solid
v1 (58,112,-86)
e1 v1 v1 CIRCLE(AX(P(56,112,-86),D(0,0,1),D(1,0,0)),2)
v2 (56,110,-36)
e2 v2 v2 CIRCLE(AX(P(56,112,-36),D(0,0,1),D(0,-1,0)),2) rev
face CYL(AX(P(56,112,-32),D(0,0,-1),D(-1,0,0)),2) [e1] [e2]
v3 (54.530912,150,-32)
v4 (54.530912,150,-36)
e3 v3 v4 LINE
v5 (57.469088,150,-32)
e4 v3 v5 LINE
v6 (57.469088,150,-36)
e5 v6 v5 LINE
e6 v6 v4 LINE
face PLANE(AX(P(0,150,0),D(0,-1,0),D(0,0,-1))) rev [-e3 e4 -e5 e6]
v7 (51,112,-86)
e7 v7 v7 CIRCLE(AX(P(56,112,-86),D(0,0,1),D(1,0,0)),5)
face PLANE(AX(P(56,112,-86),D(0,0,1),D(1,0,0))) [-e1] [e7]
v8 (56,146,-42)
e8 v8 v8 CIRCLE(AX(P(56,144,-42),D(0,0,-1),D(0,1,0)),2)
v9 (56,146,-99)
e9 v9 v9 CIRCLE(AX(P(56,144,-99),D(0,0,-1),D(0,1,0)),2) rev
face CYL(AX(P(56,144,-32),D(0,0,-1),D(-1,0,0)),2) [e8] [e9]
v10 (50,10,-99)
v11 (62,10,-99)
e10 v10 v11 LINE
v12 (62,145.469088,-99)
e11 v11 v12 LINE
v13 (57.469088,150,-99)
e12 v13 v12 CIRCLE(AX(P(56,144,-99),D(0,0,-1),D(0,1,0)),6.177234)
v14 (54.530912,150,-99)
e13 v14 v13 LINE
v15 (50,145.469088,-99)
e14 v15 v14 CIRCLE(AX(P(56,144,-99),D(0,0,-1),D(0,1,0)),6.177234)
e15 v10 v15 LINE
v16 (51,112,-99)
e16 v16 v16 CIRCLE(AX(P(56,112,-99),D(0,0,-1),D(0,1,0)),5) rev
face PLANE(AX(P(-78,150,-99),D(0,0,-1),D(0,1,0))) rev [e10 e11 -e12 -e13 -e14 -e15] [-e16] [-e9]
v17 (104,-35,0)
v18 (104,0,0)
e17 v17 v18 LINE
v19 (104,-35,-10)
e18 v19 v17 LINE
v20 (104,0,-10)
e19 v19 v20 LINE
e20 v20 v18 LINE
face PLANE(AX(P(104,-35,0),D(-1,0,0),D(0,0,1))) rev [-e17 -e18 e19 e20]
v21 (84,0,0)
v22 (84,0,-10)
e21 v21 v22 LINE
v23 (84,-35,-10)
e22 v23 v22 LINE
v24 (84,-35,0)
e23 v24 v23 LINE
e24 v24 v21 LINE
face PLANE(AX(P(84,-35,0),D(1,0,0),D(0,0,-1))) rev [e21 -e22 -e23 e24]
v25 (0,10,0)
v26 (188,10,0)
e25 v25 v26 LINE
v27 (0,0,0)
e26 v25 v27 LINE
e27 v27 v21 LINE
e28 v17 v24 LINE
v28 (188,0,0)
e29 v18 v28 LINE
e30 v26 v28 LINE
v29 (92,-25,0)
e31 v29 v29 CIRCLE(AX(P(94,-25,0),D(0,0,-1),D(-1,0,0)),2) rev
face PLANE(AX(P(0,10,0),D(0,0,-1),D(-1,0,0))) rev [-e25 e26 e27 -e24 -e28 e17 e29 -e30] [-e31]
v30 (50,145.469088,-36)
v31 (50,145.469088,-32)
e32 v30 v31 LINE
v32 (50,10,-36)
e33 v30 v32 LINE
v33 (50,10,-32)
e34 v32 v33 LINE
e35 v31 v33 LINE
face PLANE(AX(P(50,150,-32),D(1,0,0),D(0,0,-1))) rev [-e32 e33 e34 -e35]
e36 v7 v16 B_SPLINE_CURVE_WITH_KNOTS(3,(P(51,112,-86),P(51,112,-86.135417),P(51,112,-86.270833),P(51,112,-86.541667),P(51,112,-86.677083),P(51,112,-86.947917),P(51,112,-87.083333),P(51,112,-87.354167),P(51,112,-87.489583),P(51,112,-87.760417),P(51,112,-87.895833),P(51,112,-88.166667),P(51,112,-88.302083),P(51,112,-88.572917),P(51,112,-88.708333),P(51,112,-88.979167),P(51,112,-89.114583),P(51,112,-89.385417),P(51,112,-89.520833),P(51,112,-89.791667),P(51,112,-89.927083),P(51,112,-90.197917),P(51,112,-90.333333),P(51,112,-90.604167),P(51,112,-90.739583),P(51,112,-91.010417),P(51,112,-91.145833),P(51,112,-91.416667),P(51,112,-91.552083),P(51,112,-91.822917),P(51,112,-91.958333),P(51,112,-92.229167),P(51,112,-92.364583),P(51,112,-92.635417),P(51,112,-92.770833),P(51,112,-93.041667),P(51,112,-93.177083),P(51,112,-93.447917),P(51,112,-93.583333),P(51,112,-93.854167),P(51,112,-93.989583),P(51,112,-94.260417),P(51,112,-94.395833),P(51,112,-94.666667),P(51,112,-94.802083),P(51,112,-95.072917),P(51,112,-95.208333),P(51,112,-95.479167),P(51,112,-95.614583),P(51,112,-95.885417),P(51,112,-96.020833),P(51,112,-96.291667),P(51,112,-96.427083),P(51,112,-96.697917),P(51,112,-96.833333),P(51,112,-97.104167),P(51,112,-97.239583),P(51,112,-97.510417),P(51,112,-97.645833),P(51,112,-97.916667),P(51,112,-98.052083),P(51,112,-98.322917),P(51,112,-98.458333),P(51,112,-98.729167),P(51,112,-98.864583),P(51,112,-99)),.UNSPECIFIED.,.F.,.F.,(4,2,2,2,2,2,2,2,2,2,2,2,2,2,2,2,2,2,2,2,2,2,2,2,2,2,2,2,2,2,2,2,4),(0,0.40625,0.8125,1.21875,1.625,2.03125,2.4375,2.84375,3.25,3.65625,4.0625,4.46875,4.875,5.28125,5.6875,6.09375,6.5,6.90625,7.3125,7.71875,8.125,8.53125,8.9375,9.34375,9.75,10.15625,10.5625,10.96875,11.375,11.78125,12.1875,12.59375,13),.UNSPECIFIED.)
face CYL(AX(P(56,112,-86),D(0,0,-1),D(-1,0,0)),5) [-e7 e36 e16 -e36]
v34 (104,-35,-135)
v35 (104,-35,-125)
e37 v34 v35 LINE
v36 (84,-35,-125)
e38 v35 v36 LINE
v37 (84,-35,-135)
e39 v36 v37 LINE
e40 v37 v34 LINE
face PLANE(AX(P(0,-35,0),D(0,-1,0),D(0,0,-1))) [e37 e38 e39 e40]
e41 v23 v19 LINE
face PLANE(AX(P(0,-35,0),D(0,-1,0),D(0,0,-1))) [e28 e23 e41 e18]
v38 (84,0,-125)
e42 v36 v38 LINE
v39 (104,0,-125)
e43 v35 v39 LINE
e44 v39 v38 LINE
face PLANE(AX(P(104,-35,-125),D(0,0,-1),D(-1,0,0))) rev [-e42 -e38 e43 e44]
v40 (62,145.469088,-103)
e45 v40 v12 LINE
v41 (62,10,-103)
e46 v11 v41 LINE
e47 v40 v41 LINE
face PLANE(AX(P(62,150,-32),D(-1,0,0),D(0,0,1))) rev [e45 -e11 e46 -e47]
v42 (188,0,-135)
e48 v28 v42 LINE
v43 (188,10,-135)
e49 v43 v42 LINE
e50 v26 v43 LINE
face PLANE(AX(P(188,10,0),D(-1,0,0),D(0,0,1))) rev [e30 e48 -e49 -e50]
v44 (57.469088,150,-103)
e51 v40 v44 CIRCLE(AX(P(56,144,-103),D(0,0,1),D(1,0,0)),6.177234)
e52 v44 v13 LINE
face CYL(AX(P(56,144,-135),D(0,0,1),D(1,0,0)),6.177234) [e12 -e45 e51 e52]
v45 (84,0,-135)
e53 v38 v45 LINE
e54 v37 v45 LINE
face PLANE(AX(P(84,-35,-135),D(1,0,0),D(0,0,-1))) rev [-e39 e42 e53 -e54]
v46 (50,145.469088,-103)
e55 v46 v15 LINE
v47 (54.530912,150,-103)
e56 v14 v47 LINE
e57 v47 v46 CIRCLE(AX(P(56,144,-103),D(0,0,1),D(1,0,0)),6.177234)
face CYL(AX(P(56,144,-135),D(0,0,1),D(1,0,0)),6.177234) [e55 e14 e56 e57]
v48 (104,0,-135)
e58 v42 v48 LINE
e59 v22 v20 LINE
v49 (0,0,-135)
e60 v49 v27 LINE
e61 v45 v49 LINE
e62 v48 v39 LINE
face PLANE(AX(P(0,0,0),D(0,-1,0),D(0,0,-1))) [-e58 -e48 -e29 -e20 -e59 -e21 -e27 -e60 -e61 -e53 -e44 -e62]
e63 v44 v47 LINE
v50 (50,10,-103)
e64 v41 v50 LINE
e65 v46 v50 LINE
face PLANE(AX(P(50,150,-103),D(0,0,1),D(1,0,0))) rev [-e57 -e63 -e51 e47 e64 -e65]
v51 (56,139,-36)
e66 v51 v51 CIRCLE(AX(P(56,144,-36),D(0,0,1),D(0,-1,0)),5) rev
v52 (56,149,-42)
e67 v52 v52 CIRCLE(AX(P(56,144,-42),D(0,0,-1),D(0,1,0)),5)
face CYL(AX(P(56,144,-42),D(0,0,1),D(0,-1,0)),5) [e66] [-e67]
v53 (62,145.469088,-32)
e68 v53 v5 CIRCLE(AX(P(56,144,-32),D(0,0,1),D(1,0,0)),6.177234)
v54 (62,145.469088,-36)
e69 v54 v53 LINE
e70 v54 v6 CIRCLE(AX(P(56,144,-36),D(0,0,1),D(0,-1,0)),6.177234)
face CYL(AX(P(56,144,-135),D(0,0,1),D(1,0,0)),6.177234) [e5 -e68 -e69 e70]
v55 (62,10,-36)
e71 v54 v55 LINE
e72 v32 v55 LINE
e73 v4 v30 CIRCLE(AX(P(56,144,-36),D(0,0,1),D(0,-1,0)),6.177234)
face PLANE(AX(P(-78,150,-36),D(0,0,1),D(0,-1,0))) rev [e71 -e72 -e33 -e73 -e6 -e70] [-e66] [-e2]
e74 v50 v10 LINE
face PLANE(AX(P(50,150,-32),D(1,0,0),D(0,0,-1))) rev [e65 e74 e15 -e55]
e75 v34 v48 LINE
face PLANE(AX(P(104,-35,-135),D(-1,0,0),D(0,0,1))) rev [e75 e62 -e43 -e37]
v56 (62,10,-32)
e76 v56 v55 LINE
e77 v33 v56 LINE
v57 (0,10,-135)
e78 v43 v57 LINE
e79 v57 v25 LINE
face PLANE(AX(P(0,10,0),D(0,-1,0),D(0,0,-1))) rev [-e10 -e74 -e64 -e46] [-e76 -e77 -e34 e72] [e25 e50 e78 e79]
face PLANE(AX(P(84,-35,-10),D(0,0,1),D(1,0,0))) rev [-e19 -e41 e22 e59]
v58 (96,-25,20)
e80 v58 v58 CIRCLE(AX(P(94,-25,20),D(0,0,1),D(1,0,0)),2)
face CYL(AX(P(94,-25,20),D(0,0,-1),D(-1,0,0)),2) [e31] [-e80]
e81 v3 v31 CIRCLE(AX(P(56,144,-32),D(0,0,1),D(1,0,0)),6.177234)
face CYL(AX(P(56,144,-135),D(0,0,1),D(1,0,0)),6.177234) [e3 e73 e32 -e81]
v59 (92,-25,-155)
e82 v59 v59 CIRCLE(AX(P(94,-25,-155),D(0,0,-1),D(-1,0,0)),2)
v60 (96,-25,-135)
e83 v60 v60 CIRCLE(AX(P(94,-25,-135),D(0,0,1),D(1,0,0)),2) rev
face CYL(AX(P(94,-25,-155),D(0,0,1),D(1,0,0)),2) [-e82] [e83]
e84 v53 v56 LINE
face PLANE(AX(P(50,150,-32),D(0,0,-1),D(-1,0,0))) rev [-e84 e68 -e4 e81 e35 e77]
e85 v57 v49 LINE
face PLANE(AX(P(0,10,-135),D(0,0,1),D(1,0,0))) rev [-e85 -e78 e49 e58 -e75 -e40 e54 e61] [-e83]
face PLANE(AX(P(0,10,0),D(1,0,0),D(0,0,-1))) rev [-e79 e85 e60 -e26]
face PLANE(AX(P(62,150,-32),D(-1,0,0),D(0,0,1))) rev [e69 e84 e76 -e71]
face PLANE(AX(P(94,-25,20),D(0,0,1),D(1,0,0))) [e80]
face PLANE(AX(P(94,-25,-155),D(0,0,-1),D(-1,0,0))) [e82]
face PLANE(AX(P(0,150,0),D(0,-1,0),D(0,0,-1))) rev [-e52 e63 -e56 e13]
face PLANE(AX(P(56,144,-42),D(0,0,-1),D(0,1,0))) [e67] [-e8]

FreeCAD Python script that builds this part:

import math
import FreeCAD as App
import Part
import Sketcher


def add_polygon(sketch, points):
    """Adds a closed chain of lines whose ends are joined by coincident constraints."""
    first, n = sketch.GeometryCount, len(points)
    for a, b in zip(points, points[1:] + points[:1]):
        sketch.addGeometry(Part.LineSegment(App.Vector(*a, 0), App.Vector(*b, 0)), False)
    for i in range(n):
        sketch.addConstraint(Sketcher.Constraint("Coincident", first + i, 2, first + (i + 1) % n, 1))

doc = App.newDocument("Part")
body = doc.addObject("PartDesign::Body", "Body")

# Sketch on XZ plane
sketch1 = body.newObject("Sketcher::SketchObject", "Sketch")
sketch1.AttachmentSupport = (doc.getObject("XZ_Plane"), [""])
sketch1.MapMode = "FlatFace"
add_polygon(sketch1, [(0, -135), (0, 0), (188, 0), (188, -135)])  # lines 0-3
sketch1.addConstraint([
    Sketcher.Constraint("Vertical", 0),
    Sketcher.Constraint("Horizontal", 1),
    Sketcher.Constraint("Vertical", 2),
    Sketcher.Constraint("Horizontal", 3),
    Sketcher.Constraint("Coincident", 0, 2, -1, 1),
    Sketcher.Constraint("DistanceX", 1, 1, 1, 2, 188.0),
    Sketcher.Constraint("DistanceY", 0, 1, 0, 2, 135.0),
])
pad1 = body.newObject("PartDesign::Pad", "Pad")
pad1.Profile = sketch1
pad1.Length = 10
pad1.Reversed = True

# Sketch on XZ plane
sketch2 = body.newObject("Sketcher::SketchObject", "Sketch001")
sketch2.AttachmentSupport = (doc.getObject("XZ_Plane"), [""])
sketch2.MapMode = "FlatFace"
sketch2.AttachmentOffset = App.Placement(App.Vector(0, 0, -10), App.Rotation())
add_polygon(sketch2, [(50, -103), (50, -32), (62, -32), (62, -103)])  # lines 0-3
sketch2.addConstraint([
    Sketcher.Constraint("Vertical", 0),
    Sketcher.Constraint("Horizontal", 1),
    Sketcher.Constraint("Vertical", 2),
    Sketcher.Constraint("Horizontal", 3),
    Sketcher.Constraint("DistanceX", 1, 1, 1, 2, 12.0),
    Sketcher.Constraint("DistanceY", 0, 1, 0, 2, 71.0),
    Sketcher.Constraint("DistanceX", -1, 1, 0, 2, 50.0),
    Sketcher.Constraint("DistanceY", 0, 2, -1, 1, 32.0),
])
pad2 = body.newObject("PartDesign::Pad", "Pad001")
pad2.Profile = sketch2
pad2.Length = 140
pad2.Reversed = True

# Sketch on YZ plane
sketch3 = body.newObject("Sketcher::SketchObject", "Sketch002")
sketch3.AttachmentSupport = (doc.getObject("YZ_Plane"), [""])
sketch3.MapMode = "FlatFace"
sketch3.AttachmentOffset = App.Placement(App.Vector(0, 0, 62), App.Rotation())
add_polygon(sketch3, [(150, -36), (10, -36), (10, -99), (150, -99)])  # lines 0-3
sketch3.addConstraint([
    Sketcher.Constraint("Horizontal", 0),
    Sketcher.Constraint("Vertical", 1),
    Sketcher.Constraint("Horizontal", 2),
    Sketcher.Constraint("Vertical", 3),
    Sketcher.Constraint("DistanceX", 0, 2, 0, 1, 140.0),
    Sketcher.Constraint("DistanceY", 1, 2, 1, 1, 63.0),
    Sketcher.Constraint("DistanceX", -1, 1, 0, 2, 10.0),
    Sketcher.Constraint("DistanceY", 0, 2, -1, 1, 36.0),
])
pocket1 = body.newObject("PartDesign::Pocket", "Pocket")
pocket1.Profile = sketch3
pocket1.Length = 140

# Sketch on XY plane
sketch4 = body.newObject("Sketcher::SketchObject", "Sketch003")
sketch4.AttachmentSupport = (doc.getObject("XY_Plane"), [""])
sketch4.MapMode = "FlatFace"
sketch4.AttachmentOffset = App.Placement(App.Vector(0, 0, -99), App.Rotation())
sketch4.addGeometry(Part.Circle(App.Vector(56, 144, 0), App.Vector(0, 0, 1), 2), False)
sketch4.addConstraint([
    Sketcher.Constraint("Diameter", 0, 4.0),
    Sketcher.Constraint("DistanceX", -1, 1, 0, 3, 56.0),
    Sketcher.Constraint("DistanceY", -1, 1, 0, 3, 144.0),
])
pad3 = body.newObject("PartDesign::Pad", "Pad002")
pad3.Profile = sketch4
pad3.Length = 67

# Sketch on XY plane
sketch5 = body.newObject("Sketcher::SketchObject", "Sketch004")
sketch5.AttachmentSupport = (doc.getObject("XY_Plane"), [""])
sketch5.MapMode = "FlatFace"
sketch5.AttachmentOffset = App.Placement(App.Vector(0, 0, -32), App.Rotation())
sketch5.addGeometry([
    Part.LineSegment(App.Vector(50, 152.744377, 0), App.Vector(50, 145.469088, 0)),
    Part.ArcOfCircle(Part.Circle(App.Vector(56, 144, 0), App.Vector(0, 0, 1), 6.177234), math.radians(13.758082), math.radians(166.241918)),
    Part.LineSegment(App.Vector(62, 145.469088, 0), App.Vector(62, 152.744377, 0)),
    Part.LineSegment(App.Vector(62, 152.744377, 0), App.Vector(50, 152.744377, 0)),
], False)
sketch5.addConstraint([
    Sketcher.Constraint("Coincident", 0, 2, 1, 2),
    Sketcher.Constraint("Coincident", 1, 1, 2, 1),
    Sketcher.Constraint("Coincident", 2, 2, 3, 1),
    Sketcher.Constraint("Coincident", 3, 2, 0, 1),
    Sketcher.Constraint("Vertical", 0),
    Sketcher.Constraint("Vertical", 2),
    Sketcher.Constraint("Horizontal", 3),
    Sketcher.Constraint("Horizontal", 0, 2, 1, 1),
    Sketcher.Constraint("DistanceX", 3, 2, 3, 1, 12.0),
    Sketcher.Constraint("DistanceX", -1, 1, 1, 3, 56.0),
    Sketcher.Constraint("DistanceY", -1, 1, 1, 3, 144.0),
    Sketcher.Constraint("Radius", 1, 6.177234),
    Sketcher.Constraint("DistanceY", 0, 2, 0, 1, 7.275289),
])
pocket2 = body.newObject("PartDesign::Pocket", "Pocket001")
pocket2.Profile = sketch5
pocket2.Type = "ThroughAll"

# Sketch on XZ plane
sketch6 = body.newObject("Sketcher::SketchObject", "Sketch005")
sketch6.AttachmentSupport = (doc.getObject("XZ_Plane"), [""])
sketch6.MapMode = "FlatFace"
add_polygon(sketch6, [(84, 0), (84, -10), (104, -10), (104, 0)])  # lines 0-3
sketch6.addConstraint([
    Sketcher.Constraint("Vertical", 0),
    Sketcher.Constraint("Horizontal", 1),
    Sketcher.Constraint("Vertical", 2),
    Sketcher.Constraint("Horizontal", 3),
    Sketcher.Constraint("PointOnObject", 2, 2, -1),
    Sketcher.Constraint("DistanceX", 1, 1, 1, 2, 20.0),
    Sketcher.Constraint("DistanceY", 0, 2, 0, 1, 10.0),
    Sketcher.Constraint("DistanceX", -1, 1, 0, 2, 84.0),
])
pad4 = body.newObject("PartDesign::Pad", "Pad003")
pad4.Profile = sketch6
pad4.Length = 35

# Sketch on XY plane
sketch7 = body.newObject("Sketcher::SketchObject", "Sketch006")
sketch7.AttachmentSupport = (doc.getObject("XY_Plane"), [""])
sketch7.MapMode = "FlatFace"
sketch7.addGeometry(Part.Circle(App.Vector(94, -25, 0), App.Vector(0, 0, 1), 2), False)
sketch7.addConstraint([
    Sketcher.Constraint("Diameter", 0, 4.0),
    Sketcher.Constraint("DistanceX", -1, 1, 0, 3, 94.0),
    Sketcher.Constraint("DistanceY", 0, 3, -1, 1, 25.0),
])
pad5 = body.newObject("PartDesign::Pad", "Pad004")
pad5.Profile = sketch7
pad5.Length = 20

# Sketch on XZ plane
sketch8 = body.newObject("Sketcher::SketchObject", "Sketch007")
sketch8.AttachmentSupport = (doc.getObject("XZ_Plane"), [""])
sketch8.MapMode = "FlatFace"
add_polygon(sketch8, [(84, -125), (84, -135), (104, -135), (104, -125)])  # lines 0-3
sketch8.addConstraint([
    Sketcher.Constraint("Vertical", 0),
    Sketcher.Constraint("Horizontal", 1),
    Sketcher.Constraint("Vertical", 2),
    Sketcher.Constraint("Horizontal", 3),
    Sketcher.Constraint("DistanceX", 1, 1, 1, 2, 20.0),
    Sketcher.Constraint("DistanceY", 0, 2, 0, 1, 10.0),
    Sketcher.Constraint("DistanceX", -1, 1, 0, 2, 84.0),
    Sketcher.Constraint("DistanceY", 0, 2, -1, 1, 135.0),
])
pad6 = body.newObject("PartDesign::Pad", "Pad005")
pad6.Profile = sketch8
pad6.Length = 35

# Sketch on XY plane
sketch9 = body.newObject("Sketcher::SketchObject", "Sketch008")
sketch9.AttachmentSupport = (doc.getObject("XY_Plane"), [""])
sketch9.MapMode = "FlatFace"
sketch9.AttachmentOffset = App.Placement(App.Vector(0, 0, -155), App.Rotation())
sketch9.addGeometry(Part.Circle(App.Vector(94, -25, 0), App.Vector(0, 0, 1), 2), False)
sketch9.addConstraint([
    Sketcher.Constraint("Diameter", 0, 4.0),
    Sketcher.Constraint("DistanceX", -1, 1, 0, 3, 94.0),
    Sketcher.Constraint("DistanceY", 0, 3, -1, 1, 25.0),
])
pad7 = body.newObject("PartDesign::Pad", "Pad006")
pad7.Profile = sketch9
pad7.Length = 20

# Sketch on XY plane
sketch10 = body.newObject("Sketcher::SketchObject", "Sketch009")
sketch10.AttachmentSupport = (doc.getObject("XY_Plane"), [""])
sketch10.MapMode = "FlatFace"
sketch10.AttachmentOffset = App.Placement(App.Vector(0, 0, -99), App.Rotation())
sketch10.addGeometry(Part.Circle(App.Vector(56, 112, 0), App.Vector(0, 0, 1), 2), False)
sketch10.addConstraint([
    Sketcher.Constraint("Diameter", 0, 4.0),
    Sketcher.Constraint("DistanceX", -1, 1, 0, 3, 56.0),
    Sketcher.Constraint("DistanceY", -1, 1, 0, 3, 112.0),
])
pad8 = body.newObject("PartDesign::Pad", "Pad007")
pad8.Profile = sketch10
pad8.Length = 67

# Sketch on XY plane
sketch11 = body.newObject("Sketcher::SketchObject", "Sketch010")
sketch11.AttachmentSupport = (doc.getObject("XY_Plane"), [""])
sketch11.MapMode = "FlatFace"
sketch11.AttachmentOffset = App.Placement(App.Vector(0, 0, -99), App.Rotation())
sketch11.addGeometry(Part.Circle(App.Vector(56, 112, 0), App.Vector(0, 0, 1), 5), False)
sketch11.addConstraint([
    Sketcher.Constraint("Diameter", 0, 10.0),
    Sketcher.Constraint("DistanceX", -1, 1, 0, 3, 56.0),
    Sketcher.Constraint("DistanceY", -1, 1, 0, 3, 112.0),
])
pad9 = body.newObject("PartDesign::Pad", "Pad008")
pad9.Profile = sketch11
pad9.Length = 13

# Sketch on XY plane
sketch12 = body.newObject("Sketcher::SketchObject", "Sketch011")
sketch12.AttachmentSupport = (doc.getObject("XY_Plane"), [""])
sketch12.MapMode = "FlatFace"
sketch12.AttachmentOffset = App.Placement(App.Vector(0, 0, -36), App.Rotation())
sketch12.addGeometry(Part.Circle(App.Vector(56, 144, 0), App.Vector(0, 0, 1), 5), False)
sketch12.addConstraint([
    Sketcher.Constraint("Diameter", 0, 10.0),
    Sketcher.Constraint("DistanceX", -1, 1, 0, 3, 56.0),
    Sketcher.Constraint("DistanceY", -1, 1, 0, 3, 144.0),
])
pad10 = body.newObject("PartDesign::Pad", "Pad009")
pad10.Profile = sketch12
pad10.Length = 6
pad10.Reversed = True

doc.recompute()
